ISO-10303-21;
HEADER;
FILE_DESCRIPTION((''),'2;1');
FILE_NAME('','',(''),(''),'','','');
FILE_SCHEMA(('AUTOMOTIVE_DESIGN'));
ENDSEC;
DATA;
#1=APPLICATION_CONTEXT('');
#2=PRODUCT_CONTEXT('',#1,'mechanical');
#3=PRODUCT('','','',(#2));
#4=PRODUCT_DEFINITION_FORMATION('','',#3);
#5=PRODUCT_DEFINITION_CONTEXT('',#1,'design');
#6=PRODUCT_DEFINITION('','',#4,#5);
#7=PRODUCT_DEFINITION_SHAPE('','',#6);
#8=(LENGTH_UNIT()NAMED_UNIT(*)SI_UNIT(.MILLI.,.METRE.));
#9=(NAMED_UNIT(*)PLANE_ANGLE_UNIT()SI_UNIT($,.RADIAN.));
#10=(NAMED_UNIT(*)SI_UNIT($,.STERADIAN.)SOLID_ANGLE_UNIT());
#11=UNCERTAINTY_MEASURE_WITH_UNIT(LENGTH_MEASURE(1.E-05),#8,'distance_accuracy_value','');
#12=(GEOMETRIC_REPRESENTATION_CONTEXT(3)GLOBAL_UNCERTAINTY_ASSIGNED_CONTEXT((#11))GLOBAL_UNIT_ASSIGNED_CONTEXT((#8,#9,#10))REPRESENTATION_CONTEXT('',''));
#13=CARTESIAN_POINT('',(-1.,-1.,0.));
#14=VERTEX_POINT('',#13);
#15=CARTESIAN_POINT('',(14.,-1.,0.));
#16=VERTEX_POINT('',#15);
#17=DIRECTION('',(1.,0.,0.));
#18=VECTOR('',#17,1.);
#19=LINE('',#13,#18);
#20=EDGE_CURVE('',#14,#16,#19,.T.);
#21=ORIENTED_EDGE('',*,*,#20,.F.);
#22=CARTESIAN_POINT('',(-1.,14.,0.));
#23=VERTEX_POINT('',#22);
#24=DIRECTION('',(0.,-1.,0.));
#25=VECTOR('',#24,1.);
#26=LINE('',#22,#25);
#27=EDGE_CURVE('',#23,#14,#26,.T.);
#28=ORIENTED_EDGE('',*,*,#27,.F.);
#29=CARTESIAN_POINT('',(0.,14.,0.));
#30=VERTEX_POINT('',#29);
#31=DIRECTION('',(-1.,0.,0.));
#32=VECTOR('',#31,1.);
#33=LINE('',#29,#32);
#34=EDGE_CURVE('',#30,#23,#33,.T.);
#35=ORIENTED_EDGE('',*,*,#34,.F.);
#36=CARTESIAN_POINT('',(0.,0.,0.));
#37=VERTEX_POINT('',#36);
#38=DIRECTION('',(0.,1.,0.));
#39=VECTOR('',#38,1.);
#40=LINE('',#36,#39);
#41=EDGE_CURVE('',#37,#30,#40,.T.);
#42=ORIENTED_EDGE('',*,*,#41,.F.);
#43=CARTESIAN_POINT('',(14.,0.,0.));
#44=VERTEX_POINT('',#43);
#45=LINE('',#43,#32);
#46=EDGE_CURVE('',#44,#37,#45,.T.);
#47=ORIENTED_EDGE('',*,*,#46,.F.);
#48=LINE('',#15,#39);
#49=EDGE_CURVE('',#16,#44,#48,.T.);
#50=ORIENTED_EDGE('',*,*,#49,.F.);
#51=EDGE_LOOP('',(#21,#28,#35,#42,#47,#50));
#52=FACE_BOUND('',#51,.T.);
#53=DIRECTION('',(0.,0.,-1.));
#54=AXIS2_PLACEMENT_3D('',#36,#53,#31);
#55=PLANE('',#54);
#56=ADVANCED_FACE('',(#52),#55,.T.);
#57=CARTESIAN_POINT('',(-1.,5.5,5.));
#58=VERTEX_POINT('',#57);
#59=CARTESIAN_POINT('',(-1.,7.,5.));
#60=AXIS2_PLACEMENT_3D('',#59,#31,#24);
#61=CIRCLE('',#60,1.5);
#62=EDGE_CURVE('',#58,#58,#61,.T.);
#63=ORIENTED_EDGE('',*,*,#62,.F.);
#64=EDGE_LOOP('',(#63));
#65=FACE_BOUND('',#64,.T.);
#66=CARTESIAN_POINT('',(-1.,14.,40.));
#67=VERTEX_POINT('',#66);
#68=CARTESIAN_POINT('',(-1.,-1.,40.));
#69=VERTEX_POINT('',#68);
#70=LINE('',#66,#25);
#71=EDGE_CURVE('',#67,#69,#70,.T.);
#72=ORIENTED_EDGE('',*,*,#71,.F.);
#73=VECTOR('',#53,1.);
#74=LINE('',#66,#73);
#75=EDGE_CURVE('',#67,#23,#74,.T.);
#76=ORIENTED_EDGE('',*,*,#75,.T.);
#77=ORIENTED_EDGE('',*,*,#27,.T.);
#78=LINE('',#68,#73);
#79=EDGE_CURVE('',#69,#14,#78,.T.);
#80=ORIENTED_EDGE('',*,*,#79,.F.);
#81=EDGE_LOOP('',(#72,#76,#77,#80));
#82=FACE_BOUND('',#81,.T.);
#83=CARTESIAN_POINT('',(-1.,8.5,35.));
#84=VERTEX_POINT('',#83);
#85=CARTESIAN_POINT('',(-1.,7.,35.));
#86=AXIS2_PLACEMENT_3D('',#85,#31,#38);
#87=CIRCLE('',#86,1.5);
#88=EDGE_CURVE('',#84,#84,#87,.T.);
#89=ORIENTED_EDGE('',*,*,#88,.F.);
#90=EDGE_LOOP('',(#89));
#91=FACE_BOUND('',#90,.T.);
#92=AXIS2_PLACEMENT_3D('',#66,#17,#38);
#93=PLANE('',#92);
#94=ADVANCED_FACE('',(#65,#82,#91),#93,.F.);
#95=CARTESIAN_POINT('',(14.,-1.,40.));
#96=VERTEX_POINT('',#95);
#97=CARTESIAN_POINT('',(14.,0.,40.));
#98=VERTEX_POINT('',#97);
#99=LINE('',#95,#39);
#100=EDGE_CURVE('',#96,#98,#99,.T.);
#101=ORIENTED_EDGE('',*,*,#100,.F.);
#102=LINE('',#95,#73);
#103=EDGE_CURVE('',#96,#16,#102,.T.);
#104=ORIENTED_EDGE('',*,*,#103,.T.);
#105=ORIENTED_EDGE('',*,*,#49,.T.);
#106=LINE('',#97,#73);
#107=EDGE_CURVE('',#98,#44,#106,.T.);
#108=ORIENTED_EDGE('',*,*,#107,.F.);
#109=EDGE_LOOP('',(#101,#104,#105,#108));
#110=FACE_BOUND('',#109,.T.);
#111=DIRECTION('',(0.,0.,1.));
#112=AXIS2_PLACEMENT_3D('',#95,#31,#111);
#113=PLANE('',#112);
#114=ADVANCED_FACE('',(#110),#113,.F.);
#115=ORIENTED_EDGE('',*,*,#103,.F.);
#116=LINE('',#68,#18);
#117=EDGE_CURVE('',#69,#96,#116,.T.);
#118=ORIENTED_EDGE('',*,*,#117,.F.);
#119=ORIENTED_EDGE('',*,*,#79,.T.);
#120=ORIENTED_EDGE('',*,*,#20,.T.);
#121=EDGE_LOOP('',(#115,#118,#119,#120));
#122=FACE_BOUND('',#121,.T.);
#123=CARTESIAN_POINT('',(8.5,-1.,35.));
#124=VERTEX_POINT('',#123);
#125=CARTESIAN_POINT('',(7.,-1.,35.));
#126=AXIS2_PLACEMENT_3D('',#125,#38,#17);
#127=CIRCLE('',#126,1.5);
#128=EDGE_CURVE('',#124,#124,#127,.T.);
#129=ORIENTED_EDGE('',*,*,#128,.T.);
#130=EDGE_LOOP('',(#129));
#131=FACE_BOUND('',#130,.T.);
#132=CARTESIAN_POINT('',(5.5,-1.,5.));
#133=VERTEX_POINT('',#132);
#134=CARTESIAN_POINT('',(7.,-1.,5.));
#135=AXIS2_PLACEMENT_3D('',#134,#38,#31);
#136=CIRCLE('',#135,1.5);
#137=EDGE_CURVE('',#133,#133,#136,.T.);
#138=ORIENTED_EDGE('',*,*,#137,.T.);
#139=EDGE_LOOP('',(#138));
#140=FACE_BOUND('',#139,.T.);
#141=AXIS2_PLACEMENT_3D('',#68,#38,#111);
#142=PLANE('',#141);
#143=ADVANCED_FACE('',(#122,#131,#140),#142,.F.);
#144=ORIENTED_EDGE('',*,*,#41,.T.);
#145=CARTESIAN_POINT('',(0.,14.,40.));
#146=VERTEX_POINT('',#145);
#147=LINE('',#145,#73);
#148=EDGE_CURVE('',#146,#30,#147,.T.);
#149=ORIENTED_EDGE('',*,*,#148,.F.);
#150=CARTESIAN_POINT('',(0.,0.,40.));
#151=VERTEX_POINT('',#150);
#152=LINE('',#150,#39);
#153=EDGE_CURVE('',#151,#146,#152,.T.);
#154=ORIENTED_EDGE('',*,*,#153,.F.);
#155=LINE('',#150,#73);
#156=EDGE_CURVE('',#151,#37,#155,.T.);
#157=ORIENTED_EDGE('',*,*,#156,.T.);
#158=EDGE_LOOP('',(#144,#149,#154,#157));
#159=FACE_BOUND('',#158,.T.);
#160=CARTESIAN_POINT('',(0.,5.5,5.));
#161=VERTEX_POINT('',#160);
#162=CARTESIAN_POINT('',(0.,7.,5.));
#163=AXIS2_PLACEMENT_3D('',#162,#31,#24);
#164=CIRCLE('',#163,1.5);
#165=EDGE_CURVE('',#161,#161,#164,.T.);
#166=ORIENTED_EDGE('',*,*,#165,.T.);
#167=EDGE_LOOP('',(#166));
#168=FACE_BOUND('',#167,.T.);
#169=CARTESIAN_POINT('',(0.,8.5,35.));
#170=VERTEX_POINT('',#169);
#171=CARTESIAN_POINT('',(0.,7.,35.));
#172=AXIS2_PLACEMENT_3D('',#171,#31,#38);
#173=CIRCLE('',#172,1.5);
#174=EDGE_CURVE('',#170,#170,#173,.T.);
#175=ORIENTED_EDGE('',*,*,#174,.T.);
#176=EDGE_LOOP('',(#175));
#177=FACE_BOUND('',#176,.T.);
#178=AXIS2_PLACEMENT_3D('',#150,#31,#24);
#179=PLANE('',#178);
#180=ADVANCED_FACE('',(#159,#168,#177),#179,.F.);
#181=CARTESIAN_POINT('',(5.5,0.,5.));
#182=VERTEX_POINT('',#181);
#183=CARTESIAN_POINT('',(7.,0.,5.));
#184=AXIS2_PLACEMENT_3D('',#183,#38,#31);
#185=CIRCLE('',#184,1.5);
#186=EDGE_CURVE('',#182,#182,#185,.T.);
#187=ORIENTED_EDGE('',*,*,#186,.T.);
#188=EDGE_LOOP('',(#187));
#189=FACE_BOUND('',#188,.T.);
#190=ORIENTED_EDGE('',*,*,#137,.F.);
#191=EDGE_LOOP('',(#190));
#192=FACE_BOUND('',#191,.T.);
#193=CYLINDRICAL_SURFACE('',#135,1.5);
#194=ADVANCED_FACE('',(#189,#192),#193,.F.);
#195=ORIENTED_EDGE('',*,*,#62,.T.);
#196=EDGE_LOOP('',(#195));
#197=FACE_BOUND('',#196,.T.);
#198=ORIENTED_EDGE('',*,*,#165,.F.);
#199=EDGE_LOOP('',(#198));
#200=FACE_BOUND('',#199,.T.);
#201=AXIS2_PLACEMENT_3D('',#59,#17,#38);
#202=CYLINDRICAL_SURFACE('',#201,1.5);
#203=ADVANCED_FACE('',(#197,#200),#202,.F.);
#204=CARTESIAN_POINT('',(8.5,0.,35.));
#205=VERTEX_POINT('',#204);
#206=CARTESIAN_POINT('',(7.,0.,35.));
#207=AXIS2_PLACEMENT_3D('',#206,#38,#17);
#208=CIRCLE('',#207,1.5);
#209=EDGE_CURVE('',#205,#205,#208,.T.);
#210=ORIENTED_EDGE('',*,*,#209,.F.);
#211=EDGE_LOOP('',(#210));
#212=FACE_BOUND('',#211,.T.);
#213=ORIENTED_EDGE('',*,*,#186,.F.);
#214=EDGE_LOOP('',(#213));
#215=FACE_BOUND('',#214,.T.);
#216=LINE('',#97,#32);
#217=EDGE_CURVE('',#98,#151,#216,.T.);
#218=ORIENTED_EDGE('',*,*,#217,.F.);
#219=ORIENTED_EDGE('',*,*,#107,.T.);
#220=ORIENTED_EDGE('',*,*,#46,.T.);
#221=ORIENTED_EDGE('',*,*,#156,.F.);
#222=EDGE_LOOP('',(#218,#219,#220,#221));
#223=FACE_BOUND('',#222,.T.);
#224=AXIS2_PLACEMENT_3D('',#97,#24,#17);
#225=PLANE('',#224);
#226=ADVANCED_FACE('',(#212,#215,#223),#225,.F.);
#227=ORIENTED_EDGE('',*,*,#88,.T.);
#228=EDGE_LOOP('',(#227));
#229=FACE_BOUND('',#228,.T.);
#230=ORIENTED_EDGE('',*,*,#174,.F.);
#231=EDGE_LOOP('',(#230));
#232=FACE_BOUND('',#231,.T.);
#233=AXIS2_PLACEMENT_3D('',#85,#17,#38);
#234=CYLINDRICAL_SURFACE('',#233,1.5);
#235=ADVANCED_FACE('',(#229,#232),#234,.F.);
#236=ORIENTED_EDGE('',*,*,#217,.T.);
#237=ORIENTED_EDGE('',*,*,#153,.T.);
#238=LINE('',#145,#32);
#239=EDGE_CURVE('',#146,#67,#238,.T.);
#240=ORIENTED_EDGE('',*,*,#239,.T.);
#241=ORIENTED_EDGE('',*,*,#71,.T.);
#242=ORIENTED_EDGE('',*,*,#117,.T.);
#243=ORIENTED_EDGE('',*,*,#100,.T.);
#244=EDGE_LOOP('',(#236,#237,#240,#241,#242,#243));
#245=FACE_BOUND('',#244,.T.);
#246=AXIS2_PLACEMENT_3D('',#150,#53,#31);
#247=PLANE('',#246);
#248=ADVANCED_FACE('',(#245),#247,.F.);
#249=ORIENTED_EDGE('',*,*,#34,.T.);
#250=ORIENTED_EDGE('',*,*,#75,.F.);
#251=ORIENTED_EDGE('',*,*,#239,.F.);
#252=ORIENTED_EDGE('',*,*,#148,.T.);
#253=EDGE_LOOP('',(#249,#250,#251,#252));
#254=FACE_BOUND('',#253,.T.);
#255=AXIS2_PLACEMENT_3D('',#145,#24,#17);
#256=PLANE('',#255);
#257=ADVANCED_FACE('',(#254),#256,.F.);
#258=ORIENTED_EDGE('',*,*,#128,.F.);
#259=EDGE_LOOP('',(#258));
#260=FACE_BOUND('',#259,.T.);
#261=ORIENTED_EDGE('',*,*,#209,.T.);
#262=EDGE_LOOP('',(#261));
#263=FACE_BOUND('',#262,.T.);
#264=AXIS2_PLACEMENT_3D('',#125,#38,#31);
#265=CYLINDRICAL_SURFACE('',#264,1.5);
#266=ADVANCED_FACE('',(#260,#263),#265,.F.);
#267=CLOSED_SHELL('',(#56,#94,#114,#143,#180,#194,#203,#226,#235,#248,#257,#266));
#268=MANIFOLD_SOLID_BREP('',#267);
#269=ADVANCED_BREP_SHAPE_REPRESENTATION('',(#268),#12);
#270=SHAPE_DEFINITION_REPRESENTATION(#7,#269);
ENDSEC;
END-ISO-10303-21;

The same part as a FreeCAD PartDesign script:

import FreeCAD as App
import Part
import Sketcher

doc = App.newDocument("Part")
body = doc.addObject("PartDesign::Body", "Body")

# Sketch on XY plane
sketch1 = body.newObject("Sketcher::SketchObject", "Sketch")
sketch1.AttachmentSupport = (doc.getObject("XY_Plane"), [""])
sketch1.MapMode = "FlatFace"
sketch1.addGeometry([
    Part.LineSegment(App.Vector(0, 0, 0), App.Vector(0, 14, 0)),  # 0
    Part.LineSegment(App.Vector(0, 14, 0), App.Vector(-1, 14, 0)),  # 1
    Part.LineSegment(App.Vector(-1, 14, 0), App.Vector(-1, -1, 0)),  # 2
    Part.LineSegment(App.Vector(-1, -1, 0), App.Vector(14, -1, 0)),  # 3
    Part.LineSegment(App.Vector(14, -1, 0), App.Vector(14, 0, 0)),  # 4
    Part.LineSegment(App.Vector(14, 0, 0), App.Vector(0, 0, 0)),  # 5
], False)
sketch1.addConstraint([
    Sketcher.Constraint("Coincident", 0, 2, 1, 1),
    Sketcher.Constraint("Coincident", 1, 2, 2, 1),
    Sketcher.Constraint("Coincident", 2, 2, 3, 1),
    Sketcher.Constraint("Coincident", 3, 2, 4, 1),
    Sketcher.Constraint("Coincident", 4, 2, 5, 1),
    Sketcher.Constraint("Coincident", 5, 2, 0, 1),
    Sketcher.Constraint("Vertical", 0),
    Sketcher.Constraint("Horizontal", 1),
    Sketcher.Constraint("Vertical", 2),
    Sketcher.Constraint("Horizontal", 3),
    Sketcher.Constraint("Vertical", 4),
    Sketcher.Constraint("Horizontal", 5),
    Sketcher.Constraint("Coincident", 5, 2, -1, 1),
    Sketcher.Constraint("Equal", 5, 0),
    Sketcher.Constraint("Equal", 3, 2),
    Sketcher.Constraint("DistanceX", 1, 2, 1, 1, 1.0),
    Sketcher.Constraint("DistanceX", 3, 1, 3, 2, 15.0),
])
pad1 = body.newObject("PartDesign::Pad", "Pad")
pad1.Profile = sketch1
pad1.Length = 40

# Sketch on XZ plane
sketch2 = body.newObject("Sketcher::SketchObject", "Sketch001")
sketch2.AttachmentSupport = (doc.getObject("XZ_Plane"), [""])
sketch2.MapMode = "FlatFace"
sketch2.addGeometry([
    Part.Circle(App.Vector(7, 5, 0), App.Vector(0, 0, 1), 1.5),
    Part.Circle(App.Vector(7, 35, 0), App.Vector(0, 0, 1), 1.5),
], False)
sketch2.addConstraint([
    Sketcher.Constraint("Equal", 0, 1),
    Sketcher.Constraint("Vertical", 0, 3, 1, 3),
    Sketcher.Constraint("Diameter", 0, 3.0),
    Sketcher.Constraint("DistanceX", -1, 1, 0, 3, 7.0),
    Sketcher.Constraint("DistanceY", -1, 1, 0, 3, 5.0),
    Sketcher.Constraint("DistanceY", -1, 1, 1, 3, 35.0),
])
pocket1 = body.newObject("PartDesign::Pocket", "Pocket")
pocket1.Profile = sketch2
pocket1.Type = "ThroughAll"
pocket1.Reversed = True
doc.recompute()

datumplane = body.newObject("PartDesign::Plane", "DatumPlane")
datumplane.Placement = App.Placement(App.Vector(0, 0, 0), App.Rotation(App.Vector(0.707106781, 0.707106781, 0), App.Vector(0, 0, -1), App.Vector(-0.707106781, 0.707106781, 0), "ZXY"))
mirrored = body.newObject("PartDesign::Mirrored", "Mirrored")
mirrored.Originals = [pocket1]
mirrored.MirrorPlane = (datumplane, [""])
body.Tip = mirrored

doc.recompute()
